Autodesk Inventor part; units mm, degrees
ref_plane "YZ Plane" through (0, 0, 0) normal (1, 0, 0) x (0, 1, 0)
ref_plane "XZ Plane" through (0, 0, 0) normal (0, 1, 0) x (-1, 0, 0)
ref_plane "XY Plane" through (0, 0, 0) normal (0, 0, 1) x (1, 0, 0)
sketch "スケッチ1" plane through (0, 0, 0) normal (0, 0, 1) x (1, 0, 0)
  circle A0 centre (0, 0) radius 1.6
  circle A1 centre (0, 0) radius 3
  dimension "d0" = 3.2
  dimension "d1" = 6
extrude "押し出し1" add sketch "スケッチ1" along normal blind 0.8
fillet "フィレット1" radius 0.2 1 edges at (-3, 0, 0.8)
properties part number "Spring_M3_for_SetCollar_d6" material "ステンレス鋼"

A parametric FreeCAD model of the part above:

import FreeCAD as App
import Part
import Sketcher

V = App.Vector


def edges_at(feature, points):
    """Names of the edges that pass closest to the given points."""
    edges = feature.Shape.Edges
    near = lambda p: min(range(len(edges)), key=lambda i: edges[i].distToShape(Part.Vertex(*p))[0])
    return sorted({f"Edge{near(p) + 1}" for p in points})

doc = App.newDocument("Part")
body = doc.addObject("PartDesign::Body", "Body")

sketch1 = body.newObject("Sketcher::SketchObject", "Sketch")
sketch1.AttachmentSupport = (doc.getObject("XY_Plane"), [""])
sketch1.MapMode = "FlatFace"
sketch1.addGeometry(Part.Circle(V(0, 0, 0), V(0, 0, 1), 3), False)
sketch1.addGeometry(Part.Circle(V(0, 0, 0), V(0, 0, 1), 1.6), False)
sketch1.addConstraint(Sketcher.Constraint("Coincident", 0, 3, -1, 1))
sketch1.addConstraint(Sketcher.Constraint("Coincident", 1, 3, -1, 1))
sketch1.addConstraint(Sketcher.Constraint("Diameter", 0, 6.0))
sketch1.addConstraint(Sketcher.Constraint("Diameter", 1, 3.2))
pad1 = body.newObject("PartDesign::Pad", "Pad")
pad1.Profile = sketch1
pad1.Length = 0.8
doc.recompute()

fillet = body.newObject("PartDesign::Fillet", "Fillet")
fillet.Base = (pad1, edges_at(pad1, [(-3, 0, 0.8)]))
fillet.Radius = 0.2

doc.recompute()
